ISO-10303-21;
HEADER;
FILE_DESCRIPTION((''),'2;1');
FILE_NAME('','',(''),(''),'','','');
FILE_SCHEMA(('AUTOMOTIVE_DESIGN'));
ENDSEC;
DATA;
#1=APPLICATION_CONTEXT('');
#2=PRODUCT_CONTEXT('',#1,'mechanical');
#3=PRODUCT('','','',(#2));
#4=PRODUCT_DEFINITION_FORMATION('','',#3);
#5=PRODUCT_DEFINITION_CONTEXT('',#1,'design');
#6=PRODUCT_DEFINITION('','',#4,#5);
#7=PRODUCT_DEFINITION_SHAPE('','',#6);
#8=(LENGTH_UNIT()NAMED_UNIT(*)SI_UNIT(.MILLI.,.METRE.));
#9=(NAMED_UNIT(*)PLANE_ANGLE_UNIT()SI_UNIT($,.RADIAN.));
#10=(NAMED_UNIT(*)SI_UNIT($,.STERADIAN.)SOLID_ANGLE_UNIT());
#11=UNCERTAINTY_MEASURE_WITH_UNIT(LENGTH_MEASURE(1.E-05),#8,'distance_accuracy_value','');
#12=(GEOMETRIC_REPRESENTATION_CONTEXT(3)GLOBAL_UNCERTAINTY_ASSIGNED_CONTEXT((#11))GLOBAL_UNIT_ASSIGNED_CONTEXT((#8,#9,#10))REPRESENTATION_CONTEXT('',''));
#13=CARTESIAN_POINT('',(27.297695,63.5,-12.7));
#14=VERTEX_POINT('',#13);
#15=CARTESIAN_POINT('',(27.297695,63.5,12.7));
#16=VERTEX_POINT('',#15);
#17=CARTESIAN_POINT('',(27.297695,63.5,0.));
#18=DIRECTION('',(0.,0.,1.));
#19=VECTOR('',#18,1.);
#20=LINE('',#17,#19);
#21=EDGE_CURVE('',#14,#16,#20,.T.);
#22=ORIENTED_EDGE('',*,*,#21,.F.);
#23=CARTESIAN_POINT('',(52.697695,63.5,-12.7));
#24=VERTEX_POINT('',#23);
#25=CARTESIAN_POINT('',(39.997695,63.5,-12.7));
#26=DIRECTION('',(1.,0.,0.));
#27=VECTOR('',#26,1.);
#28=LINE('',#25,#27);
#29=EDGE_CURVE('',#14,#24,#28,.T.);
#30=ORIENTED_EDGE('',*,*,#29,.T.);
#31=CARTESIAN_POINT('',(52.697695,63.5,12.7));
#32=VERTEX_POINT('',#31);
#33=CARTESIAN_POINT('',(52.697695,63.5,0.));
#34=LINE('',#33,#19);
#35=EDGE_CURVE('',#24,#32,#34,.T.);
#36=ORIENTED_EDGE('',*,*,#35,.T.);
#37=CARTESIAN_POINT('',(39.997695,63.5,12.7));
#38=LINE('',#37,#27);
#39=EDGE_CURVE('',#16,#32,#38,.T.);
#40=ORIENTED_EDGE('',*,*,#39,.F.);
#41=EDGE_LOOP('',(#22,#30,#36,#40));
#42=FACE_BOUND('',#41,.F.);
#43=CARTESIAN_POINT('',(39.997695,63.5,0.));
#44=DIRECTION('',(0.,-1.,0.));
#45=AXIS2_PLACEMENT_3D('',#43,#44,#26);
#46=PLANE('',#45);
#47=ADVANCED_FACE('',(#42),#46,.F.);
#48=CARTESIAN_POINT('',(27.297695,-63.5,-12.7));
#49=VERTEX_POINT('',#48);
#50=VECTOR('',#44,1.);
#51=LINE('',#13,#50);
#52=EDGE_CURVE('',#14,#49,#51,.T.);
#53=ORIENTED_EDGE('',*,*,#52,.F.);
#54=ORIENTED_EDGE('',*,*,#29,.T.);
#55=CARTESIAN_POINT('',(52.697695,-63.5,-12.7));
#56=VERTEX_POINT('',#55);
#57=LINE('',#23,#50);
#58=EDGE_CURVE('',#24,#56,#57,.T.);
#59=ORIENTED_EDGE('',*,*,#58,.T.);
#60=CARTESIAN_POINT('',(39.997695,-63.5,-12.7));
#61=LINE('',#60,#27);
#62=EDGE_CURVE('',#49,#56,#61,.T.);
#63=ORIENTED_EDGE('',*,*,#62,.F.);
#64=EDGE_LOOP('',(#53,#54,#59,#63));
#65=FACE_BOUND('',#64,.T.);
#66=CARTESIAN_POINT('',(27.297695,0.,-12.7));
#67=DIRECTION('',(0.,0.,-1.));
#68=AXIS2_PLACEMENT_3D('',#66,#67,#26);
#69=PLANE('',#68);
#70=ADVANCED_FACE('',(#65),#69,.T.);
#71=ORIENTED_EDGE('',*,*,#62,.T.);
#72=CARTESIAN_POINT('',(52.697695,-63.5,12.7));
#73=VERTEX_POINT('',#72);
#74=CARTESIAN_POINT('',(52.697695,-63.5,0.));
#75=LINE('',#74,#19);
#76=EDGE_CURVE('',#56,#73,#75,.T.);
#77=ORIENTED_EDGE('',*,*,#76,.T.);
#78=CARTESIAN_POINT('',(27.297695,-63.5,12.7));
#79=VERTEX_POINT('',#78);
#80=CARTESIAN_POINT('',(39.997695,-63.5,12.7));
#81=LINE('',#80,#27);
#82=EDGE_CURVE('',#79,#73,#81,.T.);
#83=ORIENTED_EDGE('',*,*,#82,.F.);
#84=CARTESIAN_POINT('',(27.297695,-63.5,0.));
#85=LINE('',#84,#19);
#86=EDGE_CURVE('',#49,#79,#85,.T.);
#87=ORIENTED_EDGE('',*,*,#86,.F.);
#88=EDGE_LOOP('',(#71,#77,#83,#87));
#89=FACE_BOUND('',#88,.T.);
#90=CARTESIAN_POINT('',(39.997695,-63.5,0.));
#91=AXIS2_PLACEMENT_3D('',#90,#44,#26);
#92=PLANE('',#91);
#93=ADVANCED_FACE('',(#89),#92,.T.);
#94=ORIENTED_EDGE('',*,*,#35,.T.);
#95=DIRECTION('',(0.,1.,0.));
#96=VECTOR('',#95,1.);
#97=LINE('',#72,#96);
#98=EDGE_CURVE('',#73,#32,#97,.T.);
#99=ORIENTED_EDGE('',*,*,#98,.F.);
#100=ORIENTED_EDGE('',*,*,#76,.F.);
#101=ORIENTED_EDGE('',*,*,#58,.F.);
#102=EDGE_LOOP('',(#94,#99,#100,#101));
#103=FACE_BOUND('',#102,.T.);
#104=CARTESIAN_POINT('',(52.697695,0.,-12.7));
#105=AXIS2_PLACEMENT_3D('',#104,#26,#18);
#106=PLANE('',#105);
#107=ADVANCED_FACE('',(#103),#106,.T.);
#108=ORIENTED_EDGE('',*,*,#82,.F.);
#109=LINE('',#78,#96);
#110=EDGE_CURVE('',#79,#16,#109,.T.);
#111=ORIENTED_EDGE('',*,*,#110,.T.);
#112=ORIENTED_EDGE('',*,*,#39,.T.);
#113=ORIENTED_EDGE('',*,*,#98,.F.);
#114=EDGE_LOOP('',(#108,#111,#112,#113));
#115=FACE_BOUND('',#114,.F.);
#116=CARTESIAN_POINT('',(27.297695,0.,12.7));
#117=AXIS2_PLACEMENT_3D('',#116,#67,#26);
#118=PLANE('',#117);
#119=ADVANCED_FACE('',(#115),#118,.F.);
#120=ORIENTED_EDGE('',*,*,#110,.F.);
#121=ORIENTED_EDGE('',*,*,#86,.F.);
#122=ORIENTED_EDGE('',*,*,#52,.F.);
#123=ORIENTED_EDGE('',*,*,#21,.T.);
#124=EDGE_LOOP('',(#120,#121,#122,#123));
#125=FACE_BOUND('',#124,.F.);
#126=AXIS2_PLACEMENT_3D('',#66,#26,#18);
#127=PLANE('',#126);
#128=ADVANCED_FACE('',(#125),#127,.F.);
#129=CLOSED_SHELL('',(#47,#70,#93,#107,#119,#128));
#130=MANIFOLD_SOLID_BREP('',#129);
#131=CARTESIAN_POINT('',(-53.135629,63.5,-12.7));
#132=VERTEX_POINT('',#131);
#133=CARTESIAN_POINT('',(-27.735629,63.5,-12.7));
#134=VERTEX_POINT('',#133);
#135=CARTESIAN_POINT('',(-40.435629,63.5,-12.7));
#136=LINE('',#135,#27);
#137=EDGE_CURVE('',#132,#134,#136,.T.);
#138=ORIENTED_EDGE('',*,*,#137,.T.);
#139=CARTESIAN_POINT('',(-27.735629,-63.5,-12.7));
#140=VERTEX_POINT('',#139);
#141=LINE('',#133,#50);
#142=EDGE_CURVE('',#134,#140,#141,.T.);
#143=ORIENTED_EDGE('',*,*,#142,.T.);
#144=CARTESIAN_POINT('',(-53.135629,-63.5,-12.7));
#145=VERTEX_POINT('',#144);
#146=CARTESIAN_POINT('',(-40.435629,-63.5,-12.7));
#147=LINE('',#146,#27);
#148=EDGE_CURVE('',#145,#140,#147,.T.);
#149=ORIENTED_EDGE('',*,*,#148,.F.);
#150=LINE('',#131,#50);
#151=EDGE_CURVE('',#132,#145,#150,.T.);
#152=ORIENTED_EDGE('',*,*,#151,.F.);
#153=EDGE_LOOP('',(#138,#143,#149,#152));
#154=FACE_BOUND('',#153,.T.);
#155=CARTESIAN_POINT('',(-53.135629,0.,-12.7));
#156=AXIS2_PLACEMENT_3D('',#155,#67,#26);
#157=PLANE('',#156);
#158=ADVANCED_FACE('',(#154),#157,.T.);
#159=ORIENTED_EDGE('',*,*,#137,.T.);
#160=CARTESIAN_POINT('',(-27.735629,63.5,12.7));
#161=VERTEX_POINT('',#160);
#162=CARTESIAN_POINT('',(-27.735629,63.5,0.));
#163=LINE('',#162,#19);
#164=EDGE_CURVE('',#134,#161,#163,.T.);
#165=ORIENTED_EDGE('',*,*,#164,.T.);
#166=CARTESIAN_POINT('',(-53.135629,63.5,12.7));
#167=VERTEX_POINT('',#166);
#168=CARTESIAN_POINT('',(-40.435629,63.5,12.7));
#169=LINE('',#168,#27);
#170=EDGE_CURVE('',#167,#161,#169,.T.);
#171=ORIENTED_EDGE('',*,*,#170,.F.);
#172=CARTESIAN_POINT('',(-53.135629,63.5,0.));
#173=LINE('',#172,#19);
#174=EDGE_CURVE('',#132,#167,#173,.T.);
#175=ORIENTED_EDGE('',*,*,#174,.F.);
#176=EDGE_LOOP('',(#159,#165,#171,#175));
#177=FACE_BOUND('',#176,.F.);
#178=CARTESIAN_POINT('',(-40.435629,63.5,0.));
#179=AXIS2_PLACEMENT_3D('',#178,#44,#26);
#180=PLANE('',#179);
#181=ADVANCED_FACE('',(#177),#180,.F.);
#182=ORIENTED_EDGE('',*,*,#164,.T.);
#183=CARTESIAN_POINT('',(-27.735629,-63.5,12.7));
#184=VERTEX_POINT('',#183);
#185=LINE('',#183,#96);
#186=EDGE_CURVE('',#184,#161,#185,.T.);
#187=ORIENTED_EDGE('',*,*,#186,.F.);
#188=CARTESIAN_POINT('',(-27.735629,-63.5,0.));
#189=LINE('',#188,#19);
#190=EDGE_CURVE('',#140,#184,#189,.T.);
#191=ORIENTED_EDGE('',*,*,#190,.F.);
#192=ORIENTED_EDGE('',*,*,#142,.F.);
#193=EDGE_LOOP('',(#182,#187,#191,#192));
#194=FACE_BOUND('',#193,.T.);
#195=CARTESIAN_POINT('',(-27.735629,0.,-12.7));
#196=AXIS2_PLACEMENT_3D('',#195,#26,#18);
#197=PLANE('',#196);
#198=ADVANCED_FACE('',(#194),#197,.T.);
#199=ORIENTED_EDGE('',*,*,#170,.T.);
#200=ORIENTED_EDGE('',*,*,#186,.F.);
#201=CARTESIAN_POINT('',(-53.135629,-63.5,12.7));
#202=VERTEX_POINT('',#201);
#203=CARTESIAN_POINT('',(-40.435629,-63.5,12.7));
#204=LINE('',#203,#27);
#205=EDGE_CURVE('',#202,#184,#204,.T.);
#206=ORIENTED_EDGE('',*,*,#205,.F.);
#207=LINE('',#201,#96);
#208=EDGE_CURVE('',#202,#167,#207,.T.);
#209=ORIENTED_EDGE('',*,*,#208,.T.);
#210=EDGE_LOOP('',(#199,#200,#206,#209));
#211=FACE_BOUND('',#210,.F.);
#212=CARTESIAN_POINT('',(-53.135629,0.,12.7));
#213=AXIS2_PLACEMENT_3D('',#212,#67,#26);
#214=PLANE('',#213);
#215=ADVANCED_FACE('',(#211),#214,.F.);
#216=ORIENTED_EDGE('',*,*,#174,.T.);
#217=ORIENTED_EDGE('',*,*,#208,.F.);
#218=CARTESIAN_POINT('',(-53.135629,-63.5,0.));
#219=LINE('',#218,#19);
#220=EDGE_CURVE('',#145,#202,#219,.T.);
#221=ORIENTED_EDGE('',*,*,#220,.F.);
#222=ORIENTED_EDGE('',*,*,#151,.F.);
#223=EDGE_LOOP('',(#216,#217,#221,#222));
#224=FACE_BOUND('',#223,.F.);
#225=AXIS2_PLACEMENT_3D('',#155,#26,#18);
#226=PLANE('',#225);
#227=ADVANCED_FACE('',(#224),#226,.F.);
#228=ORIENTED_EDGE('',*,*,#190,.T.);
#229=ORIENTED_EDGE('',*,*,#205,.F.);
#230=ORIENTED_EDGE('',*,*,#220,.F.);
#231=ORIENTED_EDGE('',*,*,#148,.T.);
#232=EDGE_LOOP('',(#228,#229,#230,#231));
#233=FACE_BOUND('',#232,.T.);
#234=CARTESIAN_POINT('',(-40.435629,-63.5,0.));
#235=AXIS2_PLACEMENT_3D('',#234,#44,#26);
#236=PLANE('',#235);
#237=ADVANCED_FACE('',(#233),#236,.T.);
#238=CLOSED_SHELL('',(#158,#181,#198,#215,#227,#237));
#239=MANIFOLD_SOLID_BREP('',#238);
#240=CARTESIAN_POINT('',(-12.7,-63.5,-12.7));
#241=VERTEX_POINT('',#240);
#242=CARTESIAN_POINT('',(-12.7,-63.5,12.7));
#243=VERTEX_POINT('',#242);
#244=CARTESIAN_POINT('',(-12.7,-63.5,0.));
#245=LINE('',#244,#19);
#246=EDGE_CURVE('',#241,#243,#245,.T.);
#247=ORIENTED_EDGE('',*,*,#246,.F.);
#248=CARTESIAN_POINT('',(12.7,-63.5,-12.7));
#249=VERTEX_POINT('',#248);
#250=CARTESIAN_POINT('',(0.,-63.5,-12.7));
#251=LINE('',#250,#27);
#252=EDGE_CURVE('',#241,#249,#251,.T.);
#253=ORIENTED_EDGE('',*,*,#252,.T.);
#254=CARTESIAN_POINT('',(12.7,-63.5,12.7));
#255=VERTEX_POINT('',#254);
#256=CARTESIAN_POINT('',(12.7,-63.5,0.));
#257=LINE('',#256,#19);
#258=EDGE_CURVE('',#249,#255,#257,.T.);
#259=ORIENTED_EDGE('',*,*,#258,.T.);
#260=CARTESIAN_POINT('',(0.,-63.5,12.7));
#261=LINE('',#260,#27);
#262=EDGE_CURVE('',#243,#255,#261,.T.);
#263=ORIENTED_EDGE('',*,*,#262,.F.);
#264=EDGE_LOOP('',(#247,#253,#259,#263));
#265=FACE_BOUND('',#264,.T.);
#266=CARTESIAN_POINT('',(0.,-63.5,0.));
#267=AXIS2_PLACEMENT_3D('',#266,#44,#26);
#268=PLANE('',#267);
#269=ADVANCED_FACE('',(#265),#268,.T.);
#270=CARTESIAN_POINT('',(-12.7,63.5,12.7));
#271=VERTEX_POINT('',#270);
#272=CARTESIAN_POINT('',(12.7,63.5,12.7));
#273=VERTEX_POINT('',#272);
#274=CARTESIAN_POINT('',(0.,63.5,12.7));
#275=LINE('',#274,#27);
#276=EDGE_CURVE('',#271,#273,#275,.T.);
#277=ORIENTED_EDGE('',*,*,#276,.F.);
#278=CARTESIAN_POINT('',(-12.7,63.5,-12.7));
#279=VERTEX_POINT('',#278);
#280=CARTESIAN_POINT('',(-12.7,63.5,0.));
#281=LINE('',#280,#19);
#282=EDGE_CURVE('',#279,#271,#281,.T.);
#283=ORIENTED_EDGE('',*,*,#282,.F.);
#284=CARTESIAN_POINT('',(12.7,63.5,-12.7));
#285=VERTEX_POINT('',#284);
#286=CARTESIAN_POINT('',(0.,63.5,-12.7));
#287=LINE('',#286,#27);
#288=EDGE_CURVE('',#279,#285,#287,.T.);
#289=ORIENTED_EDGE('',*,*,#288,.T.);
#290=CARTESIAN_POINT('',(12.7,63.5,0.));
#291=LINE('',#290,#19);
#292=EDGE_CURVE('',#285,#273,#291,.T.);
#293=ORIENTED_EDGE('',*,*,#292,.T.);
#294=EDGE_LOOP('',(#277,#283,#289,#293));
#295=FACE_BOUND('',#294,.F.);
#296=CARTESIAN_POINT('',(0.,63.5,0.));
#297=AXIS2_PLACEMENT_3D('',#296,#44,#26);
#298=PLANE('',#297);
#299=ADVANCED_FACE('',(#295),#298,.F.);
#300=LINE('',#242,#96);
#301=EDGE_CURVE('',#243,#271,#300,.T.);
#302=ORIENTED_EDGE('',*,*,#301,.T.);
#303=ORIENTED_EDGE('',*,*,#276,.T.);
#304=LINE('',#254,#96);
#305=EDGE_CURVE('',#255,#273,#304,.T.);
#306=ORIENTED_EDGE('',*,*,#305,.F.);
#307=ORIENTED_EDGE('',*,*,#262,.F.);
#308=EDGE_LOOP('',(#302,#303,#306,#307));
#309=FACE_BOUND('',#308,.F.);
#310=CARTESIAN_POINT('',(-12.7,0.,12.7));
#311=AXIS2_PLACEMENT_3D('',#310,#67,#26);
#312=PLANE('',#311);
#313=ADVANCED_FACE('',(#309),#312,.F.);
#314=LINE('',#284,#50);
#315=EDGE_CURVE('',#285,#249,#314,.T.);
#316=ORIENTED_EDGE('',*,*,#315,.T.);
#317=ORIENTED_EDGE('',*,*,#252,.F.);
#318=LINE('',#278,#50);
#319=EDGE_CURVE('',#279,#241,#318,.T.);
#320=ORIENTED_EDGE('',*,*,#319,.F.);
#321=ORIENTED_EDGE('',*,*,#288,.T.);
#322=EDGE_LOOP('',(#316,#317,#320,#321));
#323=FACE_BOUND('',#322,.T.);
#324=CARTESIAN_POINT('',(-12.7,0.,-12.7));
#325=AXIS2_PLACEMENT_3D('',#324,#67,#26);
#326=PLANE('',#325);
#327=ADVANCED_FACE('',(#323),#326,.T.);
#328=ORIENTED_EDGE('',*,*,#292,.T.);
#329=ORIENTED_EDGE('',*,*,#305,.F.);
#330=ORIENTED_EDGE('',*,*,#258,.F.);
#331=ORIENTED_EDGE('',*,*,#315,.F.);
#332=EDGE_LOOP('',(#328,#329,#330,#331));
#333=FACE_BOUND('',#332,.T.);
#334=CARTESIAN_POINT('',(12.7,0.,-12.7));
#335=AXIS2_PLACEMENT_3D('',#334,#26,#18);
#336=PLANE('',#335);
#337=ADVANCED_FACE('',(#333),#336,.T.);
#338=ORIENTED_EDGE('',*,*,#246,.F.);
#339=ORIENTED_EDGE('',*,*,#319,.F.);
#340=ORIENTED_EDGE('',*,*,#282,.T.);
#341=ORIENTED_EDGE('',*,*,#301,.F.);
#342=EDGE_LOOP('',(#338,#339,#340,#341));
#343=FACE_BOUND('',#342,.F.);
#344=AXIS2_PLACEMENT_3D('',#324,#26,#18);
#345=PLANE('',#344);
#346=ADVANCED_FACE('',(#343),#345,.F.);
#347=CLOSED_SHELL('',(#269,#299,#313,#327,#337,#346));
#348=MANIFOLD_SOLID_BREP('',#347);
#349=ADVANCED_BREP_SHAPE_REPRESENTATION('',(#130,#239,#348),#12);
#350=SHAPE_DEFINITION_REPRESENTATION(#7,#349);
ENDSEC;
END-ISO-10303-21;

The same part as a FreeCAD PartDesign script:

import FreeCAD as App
import Part
import Sketcher

V = App.Vector
Q = App.Units.Quantity

doc = App.newDocument("Part")
body = doc.addObject("PartDesign::Body", "Body")

# Sketch on XZ plane
sketch1 = body.newObject("Sketcher::SketchObject", "Sketch")
sketch1.AttachmentSupport = (doc.getObject("XZ_Plane"), [""])
sketch1.MapMode = "FlatFace"
sketch1.addGeometry(Part.LineSegment(V(-53, 13, 0), V(-53, -13, 0)), False)
sketch1.addGeometry(Part.LineSegment(V(-53, -13, 0), V(-28, -13, 0)), False)
sketch1.addGeometry(Part.LineSegment(V(-28, -13, 0), V(-28, 13, 0)), False)
sketch1.addGeometry(Part.LineSegment(V(-28, 13, 0), V(-53, 13, 0)), False)
sketch1.addConstraint(Sketcher.Constraint("Coincident", 0, 2, 1, 1))
sketch1.addConstraint(Sketcher.Constraint("Coincident", 1, 2, 2, 1))
sketch1.addConstraint(Sketcher.Constraint("Coincident", 2, 2, 3, 1))
sketch1.addConstraint(Sketcher.Constraint("Coincident", 3, 2, 0, 1))
sketch1.addConstraint(Sketcher.Constraint("Vertical", 0))
sketch1.addConstraint(Sketcher.Constraint("Horizontal", 1))
sketch1.addConstraint(Sketcher.Constraint("Vertical", 2))
sketch1.addConstraint(Sketcher.Constraint("Horizontal", 3))
sketch1.addConstraint(Sketcher.Constraint("Equal", 3, 0))
sketch1.addConstraint(Sketcher.Constraint("DistanceX", 1, 1, 1, 2, Q("1 in")))
sketch1.addConstraint(Sketcher.Constraint("DistanceY", 0, 2, -1, 1, Q("0.5 in")))
sketch1.addConstraint(Sketcher.Constraint("DistanceX", 0, 2, -1, 1, Q("53.135629 mm")))
pad1 = body.newObject("PartDesign::Pad", "Pad")
pad1.Profile = sketch1
pad1.Length = Q("5 in")
pad1.Midplane = True
body2 = doc.addObject("PartDesign::Body", "Body001")

# Sketch on XZ plane
sketch2 = body2.newObject("Sketcher::SketchObject", "Sketch001")
sketch2.AttachmentSupport = (doc.getObject("XZ_Plane001"), [""])
sketch2.MapMode = "FlatFace"
sketch2.addGeometry(Part.LineSegment(V(-13, 13, 0), V(-13, -13, 0)), False)
sketch2.addGeometry(Part.LineSegment(V(-13, -13, 0), V(13, -13, 0)), False)
sketch2.addGeometry(Part.LineSegment(V(13, -13, 0), V(13, 13, 0)), False)
sketch2.addGeometry(Part.LineSegment(V(13, 13, 0), V(-13, 13, 0)), False)
sketch2.addConstraint(Sketcher.Constraint("Coincident", 0, 2, 1, 1))
sketch2.addConstraint(Sketcher.Constraint("Coincident", 1, 2, 2, 1))
sketch2.addConstraint(Sketcher.Constraint("Coincident", 2, 2, 3, 1))
sketch2.addConstraint(Sketcher.Constraint("Coincident", 3, 2, 0, 1))
sketch2.addConstraint(Sketcher.Constraint("Vertical", 0))
sketch2.addConstraint(Sketcher.Constraint("Horizontal", 1))
sketch2.addConstraint(Sketcher.Constraint("Vertical", 2))
sketch2.addConstraint(Sketcher.Constraint("Horizontal", 3))
sketch2.addConstraint(Sketcher.Constraint("Symmetric", 0, 2, 2, 2, -1, 1))
sketch2.addConstraint(Sketcher.Constraint("Equal", 3, 0))
sketch2.addConstraint(Sketcher.Constraint("DistanceX", 1, 1, 1, 2, Q("1 in")))
pad2 = body2.newObject("PartDesign::Pad", "Pad001")
pad2.Profile = sketch2
pad2.Length = Q("5 in")
pad2.Midplane = True
body3 = doc.addObject("PartDesign::Body", "Body002")

# Sketch on XZ plane
sketch3 = body3.newObject("Sketcher::SketchObject", "Sketch002")
sketch3.AttachmentSupport = (doc.getObject("XZ_Plane002"), [""])
sketch3.MapMode = "FlatFace"
sketch3.addGeometry(Part.LineSegment(V(27, 13, 0), V(27, -13, 0)), False)
sketch3.addGeometry(Part.LineSegment(V(27, -13, 0), V(53, -13, 0)), False)
sketch3.addGeometry(Part.LineSegment(V(53, -13, 0), V(53, 13, 0)), False)
sketch3.addGeometry(Part.LineSegment(V(53, 13, 0), V(27, 13, 0)), False)
sketch3.addConstraint(Sketcher.Constraint("Coincident", 0, 2, 1, 1))
sketch3.addConstraint(Sketcher.Constraint("Coincident", 1, 2, 2, 1))
sketch3.addConstraint(Sketcher.Constraint("Coincident", 2, 2, 3, 1))
sketch3.addConstraint(Sketcher.Constraint("Coincident", 3, 2, 0, 1))
sketch3.addConstraint(Sketcher.Constraint("Vertical", 0))
sketch3.addConstraint(Sketcher.Constraint("Horizontal", 1))
sketch3.addConstraint(Sketcher.Constraint("Vertical", 2))
sketch3.addConstraint(Sketcher.Constraint("Horizontal", 3))
sketch3.addConstraint(Sketcher.Constraint("Equal", 3, 0))
sketch3.addConstraint(Sketcher.Constraint("DistanceX", 1, 1, 1, 2, Q("1 in")))
sketch3.addConstraint(Sketcher.Constraint("DistanceY", 0, 2, -1, 1, Q("0.5 in")))
sketch3.addConstraint(Sketcher.Constraint("DistanceX", -1, 1, 0, 2, Q("27.297695 mm")))
pad3 = body3.newObject("PartDesign::Pad", "Pad002")
pad3.Profile = sketch3
pad3.Length = Q("5 in")
pad3.Midplane = True

doc.recompute()
